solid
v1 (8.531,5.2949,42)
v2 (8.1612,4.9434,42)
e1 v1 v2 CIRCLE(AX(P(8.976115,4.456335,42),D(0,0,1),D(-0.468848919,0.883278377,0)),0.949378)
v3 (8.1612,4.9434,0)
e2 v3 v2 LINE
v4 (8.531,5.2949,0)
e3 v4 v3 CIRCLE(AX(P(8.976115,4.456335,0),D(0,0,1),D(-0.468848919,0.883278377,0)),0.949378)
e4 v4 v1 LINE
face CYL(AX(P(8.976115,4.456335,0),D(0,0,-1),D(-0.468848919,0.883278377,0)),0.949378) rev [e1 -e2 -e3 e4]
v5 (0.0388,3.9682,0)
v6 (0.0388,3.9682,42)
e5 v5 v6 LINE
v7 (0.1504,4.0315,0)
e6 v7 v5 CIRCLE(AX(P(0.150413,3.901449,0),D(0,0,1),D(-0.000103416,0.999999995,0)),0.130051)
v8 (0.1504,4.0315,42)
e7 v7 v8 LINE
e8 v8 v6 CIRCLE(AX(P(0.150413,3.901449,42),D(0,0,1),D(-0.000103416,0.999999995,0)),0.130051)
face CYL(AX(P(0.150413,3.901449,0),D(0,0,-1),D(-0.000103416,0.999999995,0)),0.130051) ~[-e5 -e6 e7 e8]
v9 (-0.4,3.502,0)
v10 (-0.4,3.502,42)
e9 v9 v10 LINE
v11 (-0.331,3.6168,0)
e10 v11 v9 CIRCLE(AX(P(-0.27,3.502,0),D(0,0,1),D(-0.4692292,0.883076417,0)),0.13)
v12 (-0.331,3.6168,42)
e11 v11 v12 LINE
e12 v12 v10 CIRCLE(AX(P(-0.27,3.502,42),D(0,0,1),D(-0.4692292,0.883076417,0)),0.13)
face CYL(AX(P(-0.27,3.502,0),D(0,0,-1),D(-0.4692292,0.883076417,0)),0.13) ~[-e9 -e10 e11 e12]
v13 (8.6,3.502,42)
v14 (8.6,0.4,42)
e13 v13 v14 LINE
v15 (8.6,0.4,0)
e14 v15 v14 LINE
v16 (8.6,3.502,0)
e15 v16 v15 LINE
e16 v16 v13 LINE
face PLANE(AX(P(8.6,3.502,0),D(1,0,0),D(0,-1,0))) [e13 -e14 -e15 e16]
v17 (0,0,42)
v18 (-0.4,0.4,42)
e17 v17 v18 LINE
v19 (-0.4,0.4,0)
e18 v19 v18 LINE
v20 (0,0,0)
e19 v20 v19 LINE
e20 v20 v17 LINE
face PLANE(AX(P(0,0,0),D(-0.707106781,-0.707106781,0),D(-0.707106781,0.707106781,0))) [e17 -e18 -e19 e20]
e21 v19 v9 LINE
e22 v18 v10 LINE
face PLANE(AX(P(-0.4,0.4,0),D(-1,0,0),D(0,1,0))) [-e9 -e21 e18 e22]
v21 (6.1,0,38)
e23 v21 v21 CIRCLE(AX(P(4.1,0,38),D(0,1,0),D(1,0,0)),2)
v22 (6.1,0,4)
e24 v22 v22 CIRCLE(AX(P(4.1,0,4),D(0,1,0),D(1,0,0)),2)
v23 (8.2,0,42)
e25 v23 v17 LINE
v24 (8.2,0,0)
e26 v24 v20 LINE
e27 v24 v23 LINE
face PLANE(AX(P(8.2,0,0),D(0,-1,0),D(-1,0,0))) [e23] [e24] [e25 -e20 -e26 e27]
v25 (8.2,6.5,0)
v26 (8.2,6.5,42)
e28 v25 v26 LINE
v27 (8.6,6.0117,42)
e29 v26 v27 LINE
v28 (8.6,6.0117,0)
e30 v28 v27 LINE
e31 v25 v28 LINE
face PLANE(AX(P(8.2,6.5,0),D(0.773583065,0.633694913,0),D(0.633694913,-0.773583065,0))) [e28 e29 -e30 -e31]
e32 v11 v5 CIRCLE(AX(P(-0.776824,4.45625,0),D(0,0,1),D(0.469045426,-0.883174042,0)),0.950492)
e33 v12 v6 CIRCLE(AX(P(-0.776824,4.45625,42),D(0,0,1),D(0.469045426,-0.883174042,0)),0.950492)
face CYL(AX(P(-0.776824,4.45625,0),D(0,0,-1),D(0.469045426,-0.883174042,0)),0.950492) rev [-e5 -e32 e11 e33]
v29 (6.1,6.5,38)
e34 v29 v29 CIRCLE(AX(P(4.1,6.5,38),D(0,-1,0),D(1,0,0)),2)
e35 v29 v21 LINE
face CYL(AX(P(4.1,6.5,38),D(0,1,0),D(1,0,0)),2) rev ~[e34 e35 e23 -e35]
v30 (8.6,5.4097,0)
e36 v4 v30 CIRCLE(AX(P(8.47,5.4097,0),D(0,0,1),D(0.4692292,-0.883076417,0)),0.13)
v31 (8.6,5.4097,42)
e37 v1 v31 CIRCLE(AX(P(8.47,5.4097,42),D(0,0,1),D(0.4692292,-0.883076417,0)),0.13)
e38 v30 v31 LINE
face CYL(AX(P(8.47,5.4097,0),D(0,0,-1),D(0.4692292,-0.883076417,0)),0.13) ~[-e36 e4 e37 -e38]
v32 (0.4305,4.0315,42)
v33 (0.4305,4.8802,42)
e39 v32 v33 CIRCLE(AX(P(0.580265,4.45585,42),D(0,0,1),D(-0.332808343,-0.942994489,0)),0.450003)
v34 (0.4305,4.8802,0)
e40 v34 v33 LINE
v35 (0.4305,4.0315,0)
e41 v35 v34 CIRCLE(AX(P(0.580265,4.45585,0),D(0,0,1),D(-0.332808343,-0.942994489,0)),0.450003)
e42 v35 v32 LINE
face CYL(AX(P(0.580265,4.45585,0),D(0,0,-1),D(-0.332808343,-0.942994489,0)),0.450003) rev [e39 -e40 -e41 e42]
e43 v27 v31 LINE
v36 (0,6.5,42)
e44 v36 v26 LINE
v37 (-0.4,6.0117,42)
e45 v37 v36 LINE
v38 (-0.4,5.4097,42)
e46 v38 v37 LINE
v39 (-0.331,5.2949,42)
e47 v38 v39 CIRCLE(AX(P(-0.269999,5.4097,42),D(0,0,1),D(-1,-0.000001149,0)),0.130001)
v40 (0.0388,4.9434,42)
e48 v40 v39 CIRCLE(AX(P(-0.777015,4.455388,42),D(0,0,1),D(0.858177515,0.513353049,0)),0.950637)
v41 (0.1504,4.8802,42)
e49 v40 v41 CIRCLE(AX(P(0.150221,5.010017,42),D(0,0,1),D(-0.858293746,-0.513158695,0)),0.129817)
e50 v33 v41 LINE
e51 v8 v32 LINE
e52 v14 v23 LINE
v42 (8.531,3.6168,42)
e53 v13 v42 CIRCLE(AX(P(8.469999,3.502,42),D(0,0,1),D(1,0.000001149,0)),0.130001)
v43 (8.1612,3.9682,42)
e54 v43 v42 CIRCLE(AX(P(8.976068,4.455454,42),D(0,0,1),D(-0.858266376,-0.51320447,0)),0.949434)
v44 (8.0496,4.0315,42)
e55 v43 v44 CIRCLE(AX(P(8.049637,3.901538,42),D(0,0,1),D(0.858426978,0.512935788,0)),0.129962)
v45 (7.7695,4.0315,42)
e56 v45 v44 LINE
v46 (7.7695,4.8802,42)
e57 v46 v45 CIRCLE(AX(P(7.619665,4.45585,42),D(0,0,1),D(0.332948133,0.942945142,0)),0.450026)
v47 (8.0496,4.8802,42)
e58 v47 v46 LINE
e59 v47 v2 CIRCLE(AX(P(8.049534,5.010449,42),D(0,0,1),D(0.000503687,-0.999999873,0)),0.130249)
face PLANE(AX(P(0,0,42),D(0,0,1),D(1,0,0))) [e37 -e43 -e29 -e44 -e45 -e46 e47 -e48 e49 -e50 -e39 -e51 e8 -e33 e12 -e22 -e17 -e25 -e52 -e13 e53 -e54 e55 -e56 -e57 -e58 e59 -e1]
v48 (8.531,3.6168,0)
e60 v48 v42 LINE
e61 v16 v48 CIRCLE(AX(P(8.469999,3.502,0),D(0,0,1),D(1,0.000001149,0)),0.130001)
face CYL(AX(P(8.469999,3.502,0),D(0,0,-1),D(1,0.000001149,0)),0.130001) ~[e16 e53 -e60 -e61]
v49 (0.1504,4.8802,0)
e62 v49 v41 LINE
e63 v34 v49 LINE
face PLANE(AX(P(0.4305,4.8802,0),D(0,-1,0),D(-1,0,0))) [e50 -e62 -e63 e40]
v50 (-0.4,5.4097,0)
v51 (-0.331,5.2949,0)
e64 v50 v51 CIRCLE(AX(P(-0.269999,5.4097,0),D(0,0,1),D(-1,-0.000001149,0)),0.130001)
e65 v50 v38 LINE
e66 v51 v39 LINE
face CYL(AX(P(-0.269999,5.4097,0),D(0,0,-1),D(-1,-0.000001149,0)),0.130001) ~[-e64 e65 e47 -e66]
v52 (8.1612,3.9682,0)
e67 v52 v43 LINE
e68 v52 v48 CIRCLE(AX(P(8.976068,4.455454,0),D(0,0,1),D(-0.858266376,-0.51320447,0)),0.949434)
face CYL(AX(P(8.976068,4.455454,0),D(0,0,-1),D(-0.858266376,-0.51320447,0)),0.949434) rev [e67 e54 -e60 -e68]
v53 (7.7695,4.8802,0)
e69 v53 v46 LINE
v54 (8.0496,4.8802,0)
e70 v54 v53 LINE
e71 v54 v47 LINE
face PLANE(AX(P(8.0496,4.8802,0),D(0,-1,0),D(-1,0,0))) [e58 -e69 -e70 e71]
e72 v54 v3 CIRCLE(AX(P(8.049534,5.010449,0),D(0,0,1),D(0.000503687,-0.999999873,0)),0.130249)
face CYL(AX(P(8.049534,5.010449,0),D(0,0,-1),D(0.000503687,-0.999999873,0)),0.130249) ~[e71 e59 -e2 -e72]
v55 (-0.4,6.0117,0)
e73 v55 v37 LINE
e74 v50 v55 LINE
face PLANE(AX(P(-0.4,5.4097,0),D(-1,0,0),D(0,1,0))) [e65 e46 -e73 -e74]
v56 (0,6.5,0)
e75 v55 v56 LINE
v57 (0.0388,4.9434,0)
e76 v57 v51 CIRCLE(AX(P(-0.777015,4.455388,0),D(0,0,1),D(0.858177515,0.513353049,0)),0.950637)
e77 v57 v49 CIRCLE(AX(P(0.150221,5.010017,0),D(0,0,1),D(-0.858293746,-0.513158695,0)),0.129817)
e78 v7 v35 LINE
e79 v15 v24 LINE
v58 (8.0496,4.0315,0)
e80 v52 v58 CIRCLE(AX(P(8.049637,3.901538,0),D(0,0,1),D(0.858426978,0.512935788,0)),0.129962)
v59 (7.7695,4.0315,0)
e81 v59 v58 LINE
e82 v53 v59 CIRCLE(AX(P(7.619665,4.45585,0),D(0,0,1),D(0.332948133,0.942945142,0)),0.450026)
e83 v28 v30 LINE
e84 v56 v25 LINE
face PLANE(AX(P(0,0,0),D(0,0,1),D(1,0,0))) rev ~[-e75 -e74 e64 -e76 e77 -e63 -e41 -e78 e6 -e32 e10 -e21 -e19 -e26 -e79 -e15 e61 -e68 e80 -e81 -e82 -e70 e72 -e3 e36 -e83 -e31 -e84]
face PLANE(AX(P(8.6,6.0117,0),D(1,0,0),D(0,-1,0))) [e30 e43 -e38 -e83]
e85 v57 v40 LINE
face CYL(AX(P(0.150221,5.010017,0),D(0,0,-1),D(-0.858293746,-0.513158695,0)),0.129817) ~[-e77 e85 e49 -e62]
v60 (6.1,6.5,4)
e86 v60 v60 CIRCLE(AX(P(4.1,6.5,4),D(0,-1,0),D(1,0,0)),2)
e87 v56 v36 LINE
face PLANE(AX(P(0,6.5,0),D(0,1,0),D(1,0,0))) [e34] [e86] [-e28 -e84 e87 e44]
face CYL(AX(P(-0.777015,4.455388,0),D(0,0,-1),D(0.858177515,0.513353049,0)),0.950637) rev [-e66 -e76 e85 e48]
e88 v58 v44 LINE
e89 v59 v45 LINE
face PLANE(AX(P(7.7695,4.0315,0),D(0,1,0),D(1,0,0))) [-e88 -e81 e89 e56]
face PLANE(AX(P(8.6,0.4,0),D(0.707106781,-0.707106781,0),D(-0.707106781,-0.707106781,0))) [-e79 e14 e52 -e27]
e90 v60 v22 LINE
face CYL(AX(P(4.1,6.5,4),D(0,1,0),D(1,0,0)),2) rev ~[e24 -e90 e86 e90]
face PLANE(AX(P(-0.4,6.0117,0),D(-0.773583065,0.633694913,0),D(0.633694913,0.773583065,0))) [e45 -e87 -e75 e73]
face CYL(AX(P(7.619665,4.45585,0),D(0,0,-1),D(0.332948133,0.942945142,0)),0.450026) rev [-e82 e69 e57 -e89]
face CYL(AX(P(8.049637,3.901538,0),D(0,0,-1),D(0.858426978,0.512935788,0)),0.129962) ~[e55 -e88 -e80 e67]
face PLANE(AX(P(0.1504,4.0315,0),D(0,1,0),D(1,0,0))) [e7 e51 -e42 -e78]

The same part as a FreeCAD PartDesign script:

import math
import FreeCAD as App
import Part
import Sketcher

V = App.Vector
Q = App.Units.Quantity

doc = App.newDocument("Part")
body = doc.addObject("PartDesign::Body", "Body")

# Sketch on XY plane
sketch1 = doc.addObject("Sketcher::SketchObject", "Sketch")
body.addObject(sketch1)
sketch1.AttachmentSupport = (doc.XY_Plane, [""])
sketch1.MapMode = "FlatFace"
sketch1.addGeometry(Part.LineSegment(V(0, 0, 0), V(8.2, 0, 0)), False)
sketch1.addGeometry(Part.LineSegment(V(8.2, 0, 0), V(8.6, 0.4, 0)), False)
sketch1.addGeometry(Part.LineSegment(V(8.6, 0.4, 0), V(8.6, 3.5, 0)), False)
sketch1.addGeometry(Part.ArcOfCircle(Part.Circle(V(8.47, 3.5, 0), V(0, 0, 1), 0.13), math.radians(0), math.radians(62)), False)
sketch1.addGeometry(Part.ArcOfCircle(Part.Circle(V(8.98, 4.46, 0), V(0, 0, 1), 0.95), math.radians(-149), math.radians(-118)), False)
sketch1.addGeometry(Part.ArcOfCircle(Part.Circle(V(8.05, 3.9, 0), V(0, 0, 1), 0.13), math.radians(31), math.radians(90)), False)
sketch1.addGeometry(Part.LineSegment(V(8.05, 4.03, 0), V(7.77, 4.03, 0)), False)
sketch1.addGeometry(Part.ArcOfCircle(Part.Circle(V(7.62, 4.46, 0), V(0, 0, 1), 0.45), math.radians(71), math.radians(289)), False)
sketch1.addGeometry(Part.LineSegment(V(7.77, 4.88, 0), V(8.05, 4.88, 0)), False)
sketch1.addGeometry(Part.ArcOfCircle(Part.Circle(V(8.05, 5.01, 0), V(0, 0, 1), 0.13), math.radians(-90), math.radians(-31)), False)
sketch1.addGeometry(Part.ArcOfCircle(Part.Circle(V(8.98, 4.46, 0), V(0, 0, 1), 0.95), math.radians(118), math.radians(149)), False)
sketch1.addGeometry(Part.ArcOfCircle(Part.Circle(V(8.47, 5.41, 0), V(0, 0, 1), 0.13), math.radians(-62), math.radians(0)), False)
sketch1.addGeometry(Part.LineSegment(V(8.6, 5.41, 0), V(8.6, 6.01, 0)), False)
sketch1.addGeometry(Part.LineSegment(V(8.6, 6.01, 0), V(8.2, 6.5, 0)), False)
sketch1.addGeometry(Part.LineSegment(V(8.2, 6.5, 0), V(0, 6.5, 0)), False)
sketch1.addGeometry(Part.LineSegment(V(0, 6.5, 0), V(-0.4, 6.01, 0)), False)
sketch1.addGeometry(Part.LineSegment(V(-0.4, 6.01, 0), V(-0.4, 5.41, 0)), False)
sketch1.addGeometry(Part.ArcOfCircle(Part.Circle(V(-0.27, 5.41, 0), V(0, 0, 1), 0.13), math.radians(180), math.radians(242)), False)
sketch1.addGeometry(Part.ArcOfCircle(Part.Circle(V(-0.78, 4.46, 0), V(0, 0, 1), 0.95), math.radians(31), math.radians(62)), False)
sketch1.addGeometry(Part.ArcOfCircle(Part.Circle(V(0.15, 5.01, 0), V(0, 0, 1), 0.13), math.radians(-149), math.radians(-90)), False)
sketch1.addGeometry(Part.LineSegment(V(0.15, 4.88, 0), V(0.43, 4.88, 0)), False)
sketch1.addGeometry(Part.ArcOfCircle(Part.Circle(V(0.58, 4.46, 0), V(0, 0, 1), 0.45), math.radians(-109), math.radians(109)), False)
sketch1.addGeometry(Part.LineSegment(V(0.43, 4.03, 0), V(0.15, 4.03, 0)), False)
sketch1.addGeometry(Part.ArcOfCircle(Part.Circle(V(0.15, 3.9, 0), V(0, 0, 1), 0.13), math.radians(90), math.radians(149)), False)
sketch1.addGeometry(Part.ArcOfCircle(Part.Circle(V(-0.78, 4.46, 0), V(0, 0, 1), 0.95), math.radians(-62), math.radians(-31)), False)
sketch1.addGeometry(Part.ArcOfCircle(Part.Circle(V(-0.27, 3.5, 0), V(0, 0, 1), 0.13), math.radians(118), math.radians(180)), False)
sketch1.addGeometry(Part.LineSegment(V(-0.4, 3.5, 0), V(-0.4, 0.4, 0)), False)
sketch1.addGeometry(Part.LineSegment(V(-0.4, 0.4, 0), V(0, 0, 0)), False)
sketch1.addConstraint(Sketcher.Constraint("Coincident", 0, 2, 1, 1))
sketch1.addConstraint(Sketcher.Constraint("Coincident", 1, 2, 2, 1))
sketch1.addConstraint(Sketcher.Constraint("Tangent", 2, 2, 3, 1))
sketch1.addConstraint(Sketcher.Constraint("Tangent", 3, 2, 4, 2))
sketch1.addConstraint(Sketcher.Constraint("Tangent", 4, 1, 5, 1))
sketch1.addConstraint(Sketcher.Constraint("Tangent", 5, 2, 6, 1))
sketch1.addConstraint(Sketcher.Constraint("Coincident", 6, 2, 7, 2))
sketch1.addConstraint(Sketcher.Constraint("Coincident", 7, 1, 8, 1))
sketch1.addConstraint(Sketcher.Constraint("Tangent", 8, 2, 9, 1))
sketch1.addConstraint(Sketcher.Constraint("Tangent", 9, 2, 10, 2))
sketch1.addConstraint(Sketcher.Constraint("Tangent", 10, 1, 11, 1))
sketch1.addConstraint(Sketcher.Constraint("Tangent", 11, 2, 12, 1))
sketch1.addConstraint(Sketcher.Constraint("Coincident", 12, 2, 13, 1))
sketch1.addConstraint(Sketcher.Constraint("Coincident", 13, 2, 14, 1))
sketch1.addConstraint(Sketcher.Constraint("Coincident", 14, 2, 15, 1))
sketch1.addConstraint(Sketcher.Constraint("Coincident", 15, 2, 16, 1))
sketch1.addConstraint(Sketcher.Constraint("Tangent", 16, 2, 17, 1))
sketch1.addConstraint(Sketcher.Constraint("Tangent", 17, 2, 18, 2))
sketch1.addConstraint(Sketcher.Constraint("Tangent", 18, 1, 19, 1))
sketch1.addConstraint(Sketcher.Constraint("Tangent", 19, 2, 20, 1))
sketch1.addConstraint(Sketcher.Constraint("Coincident", 20, 2, 21, 2))
sketch1.addConstraint(Sketcher.Constraint("Coincident", 21, 1, 22, 1))
sketch1.addConstraint(Sketcher.Constraint("Tangent", 22, 2, 23, 1))
sketch1.addConstraint(Sketcher.Constraint("Tangent", 23, 2, 24, 2))
sketch1.addConstraint(Sketcher.Constraint("Tangent", 24, 1, 25, 1))
sketch1.addConstraint(Sketcher.Constraint("Tangent", 25, 2, 26, 1))
sketch1.addConstraint(Sketcher.Constraint("Coincident", 26, 2, 27, 1))
sketch1.addConstraint(Sketcher.Constraint("Coincident", 27, 2, 0, 1))
sketch1.addConstraint(Sketcher.Constraint("Horizontal", 0))
sketch1.addConstraint(Sketcher.Constraint("Vertical", 2))
sketch1.addConstraint(Sketcher.Constraint("Horizontal", 6))
sketch1.addConstraint(Sketcher.Constraint("Horizontal", 8))
sketch1.addConstraint(Sketcher.Constraint("Vertical", 12))
sketch1.addConstraint(Sketcher.Constraint("Horizontal", 14))
sketch1.addConstraint(Sketcher.Constraint("Vertical", 16))
sketch1.addConstraint(Sketcher.Constraint("Horizontal", 20))
sketch1.addConstraint(Sketcher.Constraint("Horizontal", 22))
sketch1.addConstraint(Sketcher.Constraint("Vertical", 26))
sketch1.addConstraint(Sketcher.Constraint("Coincident", 27, 2, -1, 1))
sketch1.addConstraint(Sketcher.Constraint("Coincident", 10, 3, 4, 3))
sketch1.addConstraint(Sketcher.Constraint("Coincident", 24, 3, 18, 3))
sketch1.addConstraint(Sketcher.Constraint("Equal", 3, 5))
sketch1.addConstraint(Sketcher.Constraint("Equal", 5, 9))
sketch1.addConstraint(Sketcher.Constraint("Equal", 4, 10))
sketch1.addConstraint(Sketcher.Constraint("Equal", 9, 11))
sketch1.addConstraint(Sketcher.Constraint("Equal", 11, 17))
sketch1.addConstraint(Sketcher.Constraint("Equal", 10, 18))
sketch1.addConstraint(Sketcher.Constraint("Equal", 17, 19))
sketch1.addConstraint(Sketcher.Constraint("Equal", 7, 21))
sketch1.addConstraint(Sketcher.Constraint("Equal", 19, 23))
sketch1.addConstraint(Sketcher.Constraint("Equal", 18, 24))
sketch1.addConstraint(Sketcher.Constraint("Equal", 23, 25))
sketch1.addConstraint(Sketcher.Constraint("PointOnObject", 14, 2, -2))
sketch1.addConstraint(Sketcher.Constraint("Perpendicular", 1, 27))
sketch1.addConstraint(Sketcher.Constraint("Horizontal", 4, 3, 7, 3))
sketch1.addConstraint(Sketcher.Constraint("Horizontal", 11, 3, 17, 3))
sketch1.addConstraint(Sketcher.Constraint("Horizontal", 10, 3, 18, 3))
sketch1.addConstraint(Sketcher.Constraint("Horizontal", 9, 3, 19, 3))
sketch1.addConstraint(Sketcher.Constraint("Horizontal", 18, 3, 21, 3))
sketch1.addConstraint(Sketcher.Constraint("Horizontal", 5, 3, 23, 3))
sketch1.addConstraint(Sketcher.Constraint("Horizontal", 3, 3, 25, 3))
sketch1.addConstraint(Sketcher.Constraint("Horizontal", 12, 2, 15, 2))
sketch1.addConstraint(Sketcher.Constraint("Horizontal", 1, 2, 26, 2))
sketch1.addConstraint(Sketcher.Constraint("Vertical", 5, 3, 9, 3))
sketch1.addConstraint(Sketcher.Constraint("Vertical", 3, 3, 11, 3))
sketch1.addConstraint(Sketcher.Constraint("Vertical", 0, 2, 13, 2))
sketch1.addConstraint(Sketcher.Constraint("Equal", 8, 20))
sketch1.addConstraint(Sketcher.Constraint("Equal", 13, 15))
sketch1.addConstraint(Sketcher.Constraint("Radius", 3, Q("0.13 mm")))
sketch1.addConstraint(Sketcher.Constraint("Radius", 4, Q("0.95 mm")))
sketch1.addConstraint(Sketcher.Constraint("Radius", 7, Q("0.45 mm")))
sketch1.addConstraint(Sketcher.Constraint("DistanceX", 0, 1, 0, 2, Q("8.2 mm")))
sketch1.addConstraint(Sketcher.Constraint("DistanceX", 6, 2, 6, 1, Q("0.28 mm")))
sketch1.addConstraint(Sketcher.Constraint("DistanceX", -1, 1, 1, 2, Q("8.6 mm")))
sketch1.addConstraint(Sketcher.Constraint("DistanceY", -1, 1, 13, 2, Q("6.5 mm")))
sketch1.addConstraint(Sketcher.Constraint("DistanceY", 2, 1, 2, 2, Q("3.102 mm")))
sketch1.addConstraint(Sketcher.Constraint("DistanceY", 12, 1, 12, 2, Q("0.602 mm")))
sketch1.addConstraint(Sketcher.Constraint("DistanceX", 7, 3, 5, 3, Q("0.43 mm")))
sketch1.addConstraint(Sketcher.Constraint("DistanceX", -1, 1, 3, 2, Q("8.531 mm")))
pad1 = doc.addObject("PartDesign::Pad", "Pad")
body.addObject(pad1)
pad1.Profile = sketch1
pad1.Length = 42

# Sketch on XZ plane
sketch2 = doc.addObject("Sketcher::SketchObject", "Sketch001")
body.addObject(sketch2)
sketch2.AttachmentSupport = (doc.XZ_Plane, [""])
sketch2.MapMode = "FlatFace"
sketch2.AttachmentOffset = App.Placement(V(0, 0, -6.5), App.Rotation())
sketch2.addGeometry(Part.Circle(V(4.1, 4, 0), V(0, 0, 1), 2), False)
sketch2.addGeometry(Part.Circle(V(4.1, 38, 0), V(0, 0, 1), 2), False)
sketch2.addConstraint(Sketcher.Constraint("Equal", 0, 1))
sketch2.addConstraint(Sketcher.Constraint("Vertical", 0, 3, 1, 3))
sketch2.addConstraint(Sketcher.Constraint("Diameter", 0, Q("4 mm")))
sketch2.addConstraint(Sketcher.Constraint("DistanceY", -1, 1, 0, 3, Q("4 mm")))
sketch2.addConstraint(Sketcher.Constraint("DistanceY", -1, 1, 1, 3, Q("38 mm")))
sketch2.addConstraint(Sketcher.Constraint("DistanceX", -1, 1, 0, 3, Q("4.1 mm")))
pocket1 = doc.addObject("PartDesign::Pocket", "Pocket")
body.addObject(pocket1)
pocket1.Profile = sketch2
pocket1.Length = 10
pocket1.Reversed = True

doc.recompute()
